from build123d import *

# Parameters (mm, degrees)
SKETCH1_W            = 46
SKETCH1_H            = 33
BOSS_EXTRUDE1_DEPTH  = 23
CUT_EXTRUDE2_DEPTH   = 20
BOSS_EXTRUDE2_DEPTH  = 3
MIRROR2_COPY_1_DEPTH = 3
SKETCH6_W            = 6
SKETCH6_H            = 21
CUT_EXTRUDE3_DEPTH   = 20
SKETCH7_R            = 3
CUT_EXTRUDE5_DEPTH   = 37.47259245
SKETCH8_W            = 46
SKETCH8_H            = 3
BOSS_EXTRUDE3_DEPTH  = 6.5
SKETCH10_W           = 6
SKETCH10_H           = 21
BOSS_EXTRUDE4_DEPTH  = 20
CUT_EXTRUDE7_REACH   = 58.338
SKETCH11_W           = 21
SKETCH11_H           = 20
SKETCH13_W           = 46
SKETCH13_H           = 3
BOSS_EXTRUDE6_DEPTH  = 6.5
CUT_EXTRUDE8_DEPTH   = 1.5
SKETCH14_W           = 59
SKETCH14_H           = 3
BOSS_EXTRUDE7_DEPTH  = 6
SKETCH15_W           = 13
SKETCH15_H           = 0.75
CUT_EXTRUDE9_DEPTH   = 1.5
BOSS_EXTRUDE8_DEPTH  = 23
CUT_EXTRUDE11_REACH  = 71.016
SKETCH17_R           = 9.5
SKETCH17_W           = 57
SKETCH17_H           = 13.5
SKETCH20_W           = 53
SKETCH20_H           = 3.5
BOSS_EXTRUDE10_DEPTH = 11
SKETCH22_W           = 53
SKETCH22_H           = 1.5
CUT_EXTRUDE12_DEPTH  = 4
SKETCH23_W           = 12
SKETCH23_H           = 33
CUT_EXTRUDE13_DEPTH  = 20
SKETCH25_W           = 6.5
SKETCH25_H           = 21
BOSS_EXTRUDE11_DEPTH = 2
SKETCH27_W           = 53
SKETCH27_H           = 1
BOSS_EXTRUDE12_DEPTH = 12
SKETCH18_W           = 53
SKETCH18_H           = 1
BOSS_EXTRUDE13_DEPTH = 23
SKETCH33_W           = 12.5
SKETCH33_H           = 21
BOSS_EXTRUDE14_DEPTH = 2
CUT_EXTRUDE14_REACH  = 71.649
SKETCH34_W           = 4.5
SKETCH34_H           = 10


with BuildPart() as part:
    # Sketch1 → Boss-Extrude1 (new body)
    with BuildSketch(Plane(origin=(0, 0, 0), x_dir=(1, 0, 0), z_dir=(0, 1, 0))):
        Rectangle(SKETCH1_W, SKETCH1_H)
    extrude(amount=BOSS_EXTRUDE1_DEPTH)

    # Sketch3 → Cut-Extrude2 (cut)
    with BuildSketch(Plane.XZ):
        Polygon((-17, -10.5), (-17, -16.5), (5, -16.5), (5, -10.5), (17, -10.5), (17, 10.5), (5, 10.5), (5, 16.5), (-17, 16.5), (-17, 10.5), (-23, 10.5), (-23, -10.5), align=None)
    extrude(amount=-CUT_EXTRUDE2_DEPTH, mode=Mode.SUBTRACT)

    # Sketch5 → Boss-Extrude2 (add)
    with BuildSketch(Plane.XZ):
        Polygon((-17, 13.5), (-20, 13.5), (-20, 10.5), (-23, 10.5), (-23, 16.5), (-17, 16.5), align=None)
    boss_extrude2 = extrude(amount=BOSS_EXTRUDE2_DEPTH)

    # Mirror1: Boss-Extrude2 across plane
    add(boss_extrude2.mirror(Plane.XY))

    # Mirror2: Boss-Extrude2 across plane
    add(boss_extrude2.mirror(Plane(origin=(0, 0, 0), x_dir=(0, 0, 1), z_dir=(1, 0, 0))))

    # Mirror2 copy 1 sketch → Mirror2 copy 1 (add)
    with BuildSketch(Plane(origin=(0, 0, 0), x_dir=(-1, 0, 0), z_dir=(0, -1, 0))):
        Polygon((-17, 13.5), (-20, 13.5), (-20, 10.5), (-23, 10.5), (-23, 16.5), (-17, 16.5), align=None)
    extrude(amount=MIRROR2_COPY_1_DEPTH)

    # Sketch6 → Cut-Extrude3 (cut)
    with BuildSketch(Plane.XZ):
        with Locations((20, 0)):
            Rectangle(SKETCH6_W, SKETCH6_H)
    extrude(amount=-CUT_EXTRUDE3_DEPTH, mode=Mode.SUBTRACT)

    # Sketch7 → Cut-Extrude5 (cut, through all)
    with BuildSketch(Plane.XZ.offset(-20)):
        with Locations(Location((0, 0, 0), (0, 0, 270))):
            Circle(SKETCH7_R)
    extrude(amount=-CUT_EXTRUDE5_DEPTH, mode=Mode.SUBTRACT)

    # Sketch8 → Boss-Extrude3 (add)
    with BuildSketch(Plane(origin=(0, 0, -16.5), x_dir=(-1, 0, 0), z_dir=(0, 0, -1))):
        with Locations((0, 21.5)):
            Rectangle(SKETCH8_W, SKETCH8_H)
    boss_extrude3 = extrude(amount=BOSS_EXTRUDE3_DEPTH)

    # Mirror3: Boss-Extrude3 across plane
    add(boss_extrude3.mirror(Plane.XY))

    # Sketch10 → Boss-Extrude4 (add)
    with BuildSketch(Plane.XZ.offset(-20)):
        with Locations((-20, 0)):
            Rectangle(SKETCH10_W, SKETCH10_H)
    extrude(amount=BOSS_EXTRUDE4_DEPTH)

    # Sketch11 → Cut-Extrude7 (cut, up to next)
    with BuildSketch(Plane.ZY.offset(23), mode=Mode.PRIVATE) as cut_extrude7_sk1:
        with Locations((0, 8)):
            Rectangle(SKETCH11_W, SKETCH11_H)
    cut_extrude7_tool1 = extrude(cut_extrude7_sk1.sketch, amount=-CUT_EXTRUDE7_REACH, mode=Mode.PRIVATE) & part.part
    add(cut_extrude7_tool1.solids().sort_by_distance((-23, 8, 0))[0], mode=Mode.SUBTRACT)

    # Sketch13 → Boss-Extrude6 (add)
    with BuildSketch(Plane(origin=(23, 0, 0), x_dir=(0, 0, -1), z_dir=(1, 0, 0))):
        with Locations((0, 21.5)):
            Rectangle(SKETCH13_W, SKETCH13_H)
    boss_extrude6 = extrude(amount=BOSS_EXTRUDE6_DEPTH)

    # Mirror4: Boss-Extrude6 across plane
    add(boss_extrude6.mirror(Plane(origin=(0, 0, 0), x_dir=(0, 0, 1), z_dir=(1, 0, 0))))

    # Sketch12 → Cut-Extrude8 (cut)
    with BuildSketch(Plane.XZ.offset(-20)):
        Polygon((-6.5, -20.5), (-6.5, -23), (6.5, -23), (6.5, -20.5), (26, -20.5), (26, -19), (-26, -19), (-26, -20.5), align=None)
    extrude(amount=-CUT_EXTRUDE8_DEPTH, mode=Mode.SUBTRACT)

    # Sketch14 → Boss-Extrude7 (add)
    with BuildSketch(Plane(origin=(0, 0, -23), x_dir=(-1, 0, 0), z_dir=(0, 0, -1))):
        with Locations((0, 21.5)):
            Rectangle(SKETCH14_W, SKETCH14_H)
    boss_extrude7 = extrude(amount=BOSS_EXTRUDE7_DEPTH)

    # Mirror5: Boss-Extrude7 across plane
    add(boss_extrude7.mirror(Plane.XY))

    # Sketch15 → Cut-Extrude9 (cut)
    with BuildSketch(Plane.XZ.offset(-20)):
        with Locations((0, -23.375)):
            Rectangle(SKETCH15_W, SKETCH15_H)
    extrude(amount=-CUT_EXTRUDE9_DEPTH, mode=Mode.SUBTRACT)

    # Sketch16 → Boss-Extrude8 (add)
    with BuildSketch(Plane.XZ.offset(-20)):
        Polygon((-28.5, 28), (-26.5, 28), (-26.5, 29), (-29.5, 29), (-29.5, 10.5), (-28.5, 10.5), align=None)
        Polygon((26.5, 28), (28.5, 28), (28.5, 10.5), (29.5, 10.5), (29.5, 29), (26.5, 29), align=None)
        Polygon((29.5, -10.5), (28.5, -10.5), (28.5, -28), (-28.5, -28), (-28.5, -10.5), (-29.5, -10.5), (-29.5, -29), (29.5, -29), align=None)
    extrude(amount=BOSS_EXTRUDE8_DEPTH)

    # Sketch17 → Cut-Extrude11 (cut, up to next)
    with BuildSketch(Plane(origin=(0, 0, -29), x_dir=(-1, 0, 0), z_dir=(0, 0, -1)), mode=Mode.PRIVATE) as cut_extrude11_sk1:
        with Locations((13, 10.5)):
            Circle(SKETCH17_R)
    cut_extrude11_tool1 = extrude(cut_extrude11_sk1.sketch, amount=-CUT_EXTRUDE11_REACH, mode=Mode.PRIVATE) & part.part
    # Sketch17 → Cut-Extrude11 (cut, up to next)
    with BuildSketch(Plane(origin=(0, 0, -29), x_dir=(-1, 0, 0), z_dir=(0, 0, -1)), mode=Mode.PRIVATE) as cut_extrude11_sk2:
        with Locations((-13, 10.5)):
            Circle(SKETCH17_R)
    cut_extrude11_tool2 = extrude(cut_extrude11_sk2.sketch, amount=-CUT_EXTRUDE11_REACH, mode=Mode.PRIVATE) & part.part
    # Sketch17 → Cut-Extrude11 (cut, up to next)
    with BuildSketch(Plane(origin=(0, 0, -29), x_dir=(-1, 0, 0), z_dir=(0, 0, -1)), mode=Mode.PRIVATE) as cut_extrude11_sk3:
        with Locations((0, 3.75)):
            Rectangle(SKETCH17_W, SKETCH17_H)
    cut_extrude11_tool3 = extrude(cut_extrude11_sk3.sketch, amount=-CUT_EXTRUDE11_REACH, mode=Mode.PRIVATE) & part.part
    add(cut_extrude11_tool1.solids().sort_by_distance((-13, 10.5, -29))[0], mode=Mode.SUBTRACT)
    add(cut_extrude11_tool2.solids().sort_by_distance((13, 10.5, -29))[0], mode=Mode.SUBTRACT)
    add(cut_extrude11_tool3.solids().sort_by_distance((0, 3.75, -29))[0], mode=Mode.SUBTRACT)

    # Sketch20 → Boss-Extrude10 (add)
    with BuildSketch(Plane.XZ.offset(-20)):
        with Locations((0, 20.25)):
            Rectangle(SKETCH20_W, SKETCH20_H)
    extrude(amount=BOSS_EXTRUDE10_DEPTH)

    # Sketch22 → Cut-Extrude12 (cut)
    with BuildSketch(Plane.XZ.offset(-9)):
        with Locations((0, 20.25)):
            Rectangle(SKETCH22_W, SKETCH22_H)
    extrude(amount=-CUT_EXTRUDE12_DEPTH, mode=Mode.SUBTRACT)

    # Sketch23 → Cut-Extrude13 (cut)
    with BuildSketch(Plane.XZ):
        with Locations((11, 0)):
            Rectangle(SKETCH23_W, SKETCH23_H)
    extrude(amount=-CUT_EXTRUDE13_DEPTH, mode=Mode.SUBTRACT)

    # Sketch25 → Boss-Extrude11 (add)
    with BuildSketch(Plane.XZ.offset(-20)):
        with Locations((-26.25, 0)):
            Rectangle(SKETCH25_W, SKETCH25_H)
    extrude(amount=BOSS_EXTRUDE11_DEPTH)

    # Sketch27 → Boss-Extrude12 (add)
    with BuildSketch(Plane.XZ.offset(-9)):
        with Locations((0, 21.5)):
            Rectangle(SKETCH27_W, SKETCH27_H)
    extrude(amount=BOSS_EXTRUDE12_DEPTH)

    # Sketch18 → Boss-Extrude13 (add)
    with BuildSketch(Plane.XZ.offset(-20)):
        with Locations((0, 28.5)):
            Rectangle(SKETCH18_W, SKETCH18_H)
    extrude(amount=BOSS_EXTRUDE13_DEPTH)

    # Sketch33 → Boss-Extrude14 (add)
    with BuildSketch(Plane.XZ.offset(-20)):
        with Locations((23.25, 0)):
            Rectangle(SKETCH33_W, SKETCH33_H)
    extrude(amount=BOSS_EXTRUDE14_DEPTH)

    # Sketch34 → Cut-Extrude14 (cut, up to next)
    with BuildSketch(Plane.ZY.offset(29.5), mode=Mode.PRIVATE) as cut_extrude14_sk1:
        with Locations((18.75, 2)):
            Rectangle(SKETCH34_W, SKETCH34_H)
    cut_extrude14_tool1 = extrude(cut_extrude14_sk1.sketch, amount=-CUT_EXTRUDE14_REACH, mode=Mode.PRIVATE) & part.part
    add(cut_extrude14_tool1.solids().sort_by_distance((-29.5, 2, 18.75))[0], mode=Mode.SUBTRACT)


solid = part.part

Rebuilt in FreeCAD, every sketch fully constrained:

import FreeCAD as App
import Part
import Sketcher

V = App.Vector
Q = App.Units.Quantity


def add_polygon(sketch, points):
    """Adds a closed chain of lines whose ends are joined by coincident constraints."""
    first, n = sketch.GeometryCount, len(points)
    for a, b in zip(points, points[1:] + points[:1]):
        sketch.addGeometry(Part.LineSegment(App.Vector(*a, 0), App.Vector(*b, 0)), False)
    for i in range(n):
        sketch.addConstraint(Sketcher.Constraint("Coincident", first + i, 2, first + (i + 1) % n, 1))

doc = App.newDocument("Part")
body = doc.addObject("PartDesign::Body", "Body")

# Sketch on XZ plane
sketch1 = doc.addObject("Sketcher::SketchObject", "Sketch")
body.addObject(sketch1)
sketch1.AttachmentSupport = (doc.XZ_Plane, [""])
sketch1.MapMode = "FlatFace"
add_polygon(sketch1, [(-23, -16), (-23, 16), (23, 16), (23, -16)])  # lines 0-3
sketch1.addConstraint(Sketcher.Constraint("Vertical", 0))
sketch1.addConstraint(Sketcher.Constraint("Horizontal", 1))
sketch1.addConstraint(Sketcher.Constraint("Vertical", 2))
sketch1.addConstraint(Sketcher.Constraint("Horizontal", 3))
sketch1.addConstraint(Sketcher.Constraint("Symmetric", 0, 2, 2, 2, -1, 1))
sketch1.addConstraint(Sketcher.Constraint("DistanceX", 1, 1, 1, 2, Q("46 mm")))
sketch1.addConstraint(Sketcher.Constraint("DistanceY", 0, 1, 0, 2, Q("33 mm")))
pad1 = doc.addObject("PartDesign::Pad", "Pad")
body.addObject(pad1)
pad1.Profile = sketch1
pad1.Length = 23
pad1.Reversed = True

# Sketch on XZ plane
sketch2 = doc.addObject("Sketcher::SketchObject", "Sketch001")
body.addObject(sketch2)
sketch2.AttachmentSupport = (doc.XZ_Plane, [""])
sketch2.MapMode = "FlatFace"
add_polygon(sketch2, [(-17, -10), (-17, -16), (5, -16), (5, -10), (17, -10), (17, 10), (5, 10), (5, 16), (-17, 16), (-17, 10), (-23, 10), (-23, -10)])  # lines 0-11
sketch2.addConstraint(Sketcher.Constraint("Vertical", 0))
sketch2.addConstraint(Sketcher.Constraint("Horizontal", 1))
sketch2.addConstraint(Sketcher.Constraint("Vertical", 2))
sketch2.addConstraint(Sketcher.Constraint("Horizontal", 3))
sketch2.addConstraint(Sketcher.Constraint("Vertical", 4))
sketch2.addConstraint(Sketcher.Constraint("Horizontal", 5))
sketch2.addConstraint(Sketcher.Constraint("Vertical", 6))
sketch2.addConstraint(Sketcher.Constraint("Horizontal", 7))
sketch2.addConstraint(Sketcher.Constraint("Vertical", 8))
sketch2.addConstraint(Sketcher.Constraint("Horizontal", 9))
sketch2.addConstraint(Sketcher.Constraint("Vertical", 10))
sketch2.addConstraint(Sketcher.Constraint("Horizontal", 11))
sketch2.addConstraint(Sketcher.Constraint("Symmetric", 3, 2, 8, 2, -1, 1))
sketch2.addConstraint(Sketcher.Constraint("Symmetric", 4, 2, 11, 2, -1, 1))
sketch2.addConstraint(Sketcher.Constraint("Symmetric", 2, 2, 5, 2, -1))
sketch2.addConstraint(Sketcher.Constraint("Equal", 11, 0))
sketch2.addConstraint(Sketcher.Constraint("Equal", 2, 6))
sketch2.addConstraint(Sketcher.Constraint("DistanceX", 1, 1, 1, 2, Q("22 mm")))
sketch2.addConstraint(Sketcher.Constraint("DistanceX", 3, 1, 3, 2, Q("12 mm")))
sketch2.addConstraint(Sketcher.Constraint("DistanceX", 9, 2, 9, 1, Q("6 mm")))
sketch2.addConstraint(Sketcher.Constraint("DistanceY", 4, 1, 4, 2, Q("21 mm")))
pocket1 = doc.addObject("PartDesign::Pocket", "Pocket")
body.addObject(pocket1)
pocket1.Profile = sketch2
pocket1.Length = 20

# Sketch on XZ plane
sketch3 = doc.addObject("Sketcher::SketchObject", "Sketch002")
body.addObject(sketch3)
sketch3.AttachmentSupport = (doc.XZ_Plane, [""])
sketch3.MapMode = "FlatFace"
add_polygon(sketch3, [(-20, 13.5), (-17, 13.5), (-17, 16.5), (-23, 16.5), (-23, 10.5), (-20, 10.5)])  # lines 0-5
sketch3.addConstraint(Sketcher.Constraint("Horizontal", 0))
sketch3.addConstraint(Sketcher.Constraint("Vertical", 1))
sketch3.addConstraint(Sketcher.Constraint("Horizontal", 2))
sketch3.addConstraint(Sketcher.Constraint("Vertical", 3))
sketch3.addConstraint(Sketcher.Constraint("Horizontal", 4))
sketch3.addConstraint(Sketcher.Constraint("Vertical", 5))
sketch3.addConstraint(Sketcher.Constraint("Equal", 0, 4))
sketch3.addConstraint(Sketcher.Constraint("Equal", 4, 1))
sketch3.addConstraint(Sketcher.Constraint("Equal", 2, 3))
sketch3.addConstraint(Sketcher.Constraint("DistanceX", 0, 1, 0, 2, Q("3 mm")))
sketch3.addConstraint(Sketcher.Constraint("DistanceX", 0, 2, -1, 1, Q("17 mm")))
sketch3.addConstraint(Sketcher.Constraint("DistanceY", -1, 1, 0, 2, Q("13.5 mm")))
pad2 = doc.addObject("PartDesign::Pad", "Pad001")
body.addObject(pad2)
pad2.Profile = sketch3
pad2.Length = 3
doc.recompute()

mirrored = doc.addObject("PartDesign::Mirrored", "Mirrored")
body.addObject(mirrored)
mirrored.Originals = [pad2]
mirrored.MirrorPlane = (doc.XY_Plane, [""])
body.Tip = mirrored
doc.recompute()

mirrored2 = doc.addObject("PartDesign::Mirrored", "Mirrored001")
body.addObject(mirrored2)
mirrored2.Originals = [pad2]
mirrored2.MirrorPlane = (doc.YZ_Plane, [""])
body.Tip = mirrored2

# Sketch on XZ plane
sketch4 = doc.addObject("Sketcher::SketchObject", "Sketch003")
body.addObject(sketch4)
sketch4.AttachmentSupport = (doc.XZ_Plane, [""])
sketch4.MapMode = "FlatFace"
add_polygon(sketch4, [(20, -13.5), (17, -13.5), (17, -16.5), (23, -16.5), (23, -10.5), (20, -10.5)])  # lines 0-5
sketch4.addConstraint(Sketcher.Constraint("Horizontal", 0))
sketch4.addConstraint(Sketcher.Constraint("Vertical", 1))
sketch4.addConstraint(Sketcher.Constraint("Horizontal", 2))
sketch4.addConstraint(Sketcher.Constraint("Vertical", 3))
sketch4.addConstraint(Sketcher.Constraint("Horizontal", 4))
sketch4.addConstraint(Sketcher.Constraint("Vertical", 5))
sketch4.addConstraint(Sketcher.Constraint("Equal", 0, 4))
sketch4.addConstraint(Sketcher.Constraint("Equal", 4, 1))
sketch4.addConstraint(Sketcher.Constraint("Equal", 2, 3))
sketch4.addConstraint(Sketcher.Constraint("DistanceX", 0, 2, 0, 1, Q("3 mm")))
sketch4.addConstraint(Sketcher.Constraint("DistanceX", -1, 1, 0, 2, Q("17 mm")))
sketch4.addConstraint(Sketcher.Constraint("DistanceY", 0, 2, -1, 1, Q("13.5 mm")))
pad3 = doc.addObject("PartDesign::Pad", "Pad002")
body.addObject(pad3)
pad3.Profile = sketch4
pad3.Length = 3

# Sketch on XZ plane
sketch5 = doc.addObject("Sketcher::SketchObject", "Sketch004")
body.addObject(sketch5)
sketch5.AttachmentSupport = (doc.XZ_Plane, [""])
sketch5.MapMode = "FlatFace"
add_polygon(sketch5, [(17, 10), (17, -10), (23, -10), (23, 10)])  # lines 0-3
sketch5.addConstraint(Sketcher.Constraint("Vertical", 0))
sketch5.addConstraint(Sketcher.Constraint("Horizontal", 1))
sketch5.addConstraint(Sketcher.Constraint("Vertical", 2))
sketch5.addConstraint(Sketcher.Constraint("Horizontal", 3))
sketch5.addConstraint(Sketcher.Constraint("DistanceX", 1, 1, 1, 2, Q("6 mm")))
sketch5.addConstraint(Sketcher.Constraint("DistanceY", 0, 2, 0, 1, Q("21 mm")))
sketch5.addConstraint(Sketcher.Constraint("DistanceX", -1, 1, 0, 2, Q("17 mm")))
sketch5.addConstraint(Sketcher.Constraint("DistanceY", 0, 2, -1, 1, Q("10.5 mm")))
pocket2 = doc.addObject("PartDesign::Pocket", "Pocket001")
body.addObject(pocket2)
pocket2.Profile = sketch5
pocket2.Length = 20

# Sketch on XZ plane
sketch6 = doc.addObject("Sketcher::SketchObject", "Sketch005")
body.addObject(sketch6)
sketch6.AttachmentSupport = (doc.XZ_Plane, [""])
sketch6.MapMode = "FlatFace"
sketch6.AttachmentOffset = App.Placement(V(0, 0, -20), App.Rotation())
sketch6.addGeometry(Part.Circle(V(0, 0, 0), V(0, 0, 1), 3), False)
sketch6.addConstraint(Sketcher.Constraint("Coincident", 0, 3, -1, 1))
sketch6.addConstraint(Sketcher.Constraint("Diameter", 0, Q("6 mm")))
pocket3 = doc.addObject("PartDesign::Pocket", "Pocket002")
body.addObject(pocket3)
pocket3.Profile = sketch6
pocket3.Type = "ThroughAll"

# Sketch on XY plane
sketch7 = doc.addObject("Sketcher::SketchObject", "Sketch006")
body.addObject(sketch7)
sketch7.AttachmentSupport = (doc.XY_Plane, [""])
sketch7.MapMode = "FlatFace"
sketch7.AttachmentOffset = App.Placement(V(0, 0, -16.5), App.Rotation())
add_polygon(sketch7, [(23, 23), (23, 20), (-23, 20), (-23, 23)])  # lines 0-3
sketch7.addConstraint(Sketcher.Constraint("Vertical", 0))
sketch7.addConstraint(Sketcher.Constraint("Horizontal", 1))
sketch7.addConstraint(Sketcher.Constraint("Vertical", 2))
sketch7.addConstraint(Sketcher.Constraint("Horizontal", 3))
sketch7.addConstraint(Sketcher.Constraint("DistanceX", 1, 2, 1, 1, Q("46 mm")))
sketch7.addConstraint(Sketcher.Constraint("DistanceY", 0, 2, 0, 1, Q("3 mm")))
sketch7.addConstraint(Sketcher.Constraint("DistanceX", -1, 1, 0, 2, Q("23 mm")))
sketch7.addConstraint(Sketcher.Constraint("DistanceY", -1, 1, 0, 2, Q("20 mm")))
pad4 = doc.addObject("PartDesign::Pad", "Pad003")
body.addObject(pad4)
pad4.Profile = sketch7
pad4.Length = 6.5
pad4.Reversed = True
doc.recompute()

mirrored3 = doc.addObject("PartDesign::Mirrored", "Mirrored002")
body.addObject(mirrored3)
mirrored3.Originals = [pad4]
mirrored3.MirrorPlane = (doc.XY_Plane, [""])
body.Tip = mirrored3

# Sketch on XZ plane
sketch8 = doc.addObject("Sketcher::SketchObject", "Sketch007")
body.addObject(sketch8)
sketch8.AttachmentSupport = (doc.XZ_Plane, [""])
sketch8.MapMode = "FlatFace"
sketch8.AttachmentOffset = App.Placement(V(0, 0, -20), App.Rotation())
add_polygon(sketch8, [(-23, 10), (-23, -10), (-17, -10), (-17, 10)])  # lines 0-3
sketch8.addConstraint(Sketcher.Constraint("Vertical", 0))
sketch8.addConstraint(Sketcher.Constraint("Horizontal", 1))
sketch8.addConstraint(Sketcher.Constraint("Vertical", 2))
sketch8.addConstraint(Sketcher.Constraint("Horizontal", 3))
sketch8.addConstraint(Sketcher.Constraint("DistanceX", 1, 1, 1, 2, Q("6 mm")))
sketch8.addConstraint(Sketcher.Constraint("DistanceY", 0, 2, 0, 1, Q("21 mm")))
sketch8.addConstraint(Sketcher.Constraint("DistanceX", 0, 2, -1, 1, Q("23 mm")))
sketch8.addConstraint(Sketcher.Constraint("DistanceY", 0, 2, -1, 1, Q("10.5 mm")))
pad5 = doc.addObject("PartDesign::Pad", "Pad004")
body.addObject(pad5)
pad5.Profile = sketch8
pad5.Length = 20

# Sketch on YZ plane
sketch9 = doc.addObject("Sketcher::SketchObject", "Sketch008")
body.addObject(sketch9)
sketch9.AttachmentSupport = (doc.YZ_Plane, [""])
sketch9.MapMode = "FlatFace"
sketch9.AttachmentOffset = App.Placement(V(0, 0, -23), App.Rotation())
add_polygon(sketch9, [(18, -10), (-2, -10), (-2, 10), (18, 10)])  # lines 0-3
sketch9.addConstraint(Sketcher.Constraint("Horizontal", 0))
sketch9.addConstraint(Sketcher.Constraint("Vertical", 1))
sketch9.addConstraint(Sketcher.Constraint("Horizontal", 2))
sketch9.addConstraint(Sketcher.Constraint("Vertical", 3))
sketch9.addConstraint(Sketcher.Constraint("DistanceX", 0, 2, 0, 1, Q("20 mm")))
sketch9.addConstraint(Sketcher.Constraint("DistanceY", 1, 1, 1, 2, Q("21 mm")))
sketch9.addConstraint(Sketcher.Constraint("DistanceX", 0, 2, -1, 1, Q("2 mm")))
sketch9.addConstraint(Sketcher.Constraint("DistanceY", 0, 2, -1, 1, Q("10.5 mm")))
pocket4 = doc.addObject("PartDesign::Pocket", "Pocket003")
body.addObject(pocket4)
pocket4.Profile = sketch9
pocket4.Type = "UpToFirst"
pocket4.Reversed = True

# Sketch on YZ plane
sketch10 = doc.addObject("Sketcher::SketchObject", "Sketch009")
body.addObject(sketch10)
sketch10.AttachmentSupport = (doc.YZ_Plane, [""])
sketch10.MapMode = "FlatFace"
sketch10.AttachmentOffset = App.Placement(V(0, 0, 23), App.Rotation())
add_polygon(sketch10, [(23, 23), (20, 23), (20, -23), (23, -23)])  # lines 0-3
sketch10.addConstraint(Sketcher.Constraint("Horizontal", 0))
sketch10.addConstraint(Sketcher.Constraint("Vertical", 1))
sketch10.addConstraint(Sketcher.Constraint("Horizontal", 2))
sketch10.addConstraint(Sketcher.Constraint("Vertical", 3))
sketch10.addConstraint(Sketcher.Constraint("DistanceX", 0, 2, 0, 1, Q("3 mm")))
sketch10.addConstraint(Sketcher.Constraint("DistanceY", 1, 2, 1, 1, Q("46 mm")))
sketch10.addConstraint(Sketcher.Constraint("DistanceX", -1, 1, 0, 2, Q("20 mm")))
sketch10.addConstraint(Sketcher.Constraint("DistanceY", -1, 1, 0, 2, Q("23 mm")))
pad6 = doc.addObject("PartDesign::Pad", "Pad005")
body.addObject(pad6)
pad6.Profile = sketch10
pad6.Length = 6.5
doc.recompute()

mirrored4 = doc.addObject("PartDesign::Mirrored", "Mirrored003")
body.addObject(mirrored4)
mirrored4.Originals = [pad6]
mirrored4.MirrorPlane = (doc.YZ_Plane, [""])
body.Tip = mirrored4

# Sketch on XZ plane
sketch11 = doc.addObject("Sketcher::SketchObject", "Sketch010")
body.addObject(sketch11)
sketch11.AttachmentSupport = (doc.XZ_Plane, [""])
sketch11.MapMode = "FlatFace"
sketch11.AttachmentOffset = App.Placement(V(0, 0, -20), App.Rotation())
add_polygon(sketch11, [(-6.5, -20.5), (-6.5, -23), (6.5, -23), (6.5, -20.5), (26, -20.5), (26, -19), (-26, -19), (-26, -20.5)])  # lines 0-7
sketch11.addConstraint(Sketcher.Constraint("Vertical", 0))
sketch11.addConstraint(Sketcher.Constraint("Horizontal", 1))
sketch11.addConstraint(Sketcher.Constraint("Vertical", 2))
sketch11.addConstraint(Sketcher.Constraint("Horizontal", 3))
sketch11.addConstraint(Sketcher.Constraint("Vertical", 4))
sketch11.addConstraint(Sketcher.Constraint("Horizontal", 5))
sketch11.addConstraint(Sketcher.Constraint("Vertical", 6))
sketch11.addConstraint(Sketcher.Constraint("Horizontal", 7))
sketch11.addConstraint(Sketcher.Constraint("Symmetric", 3, 2, 6, 2, -2))
sketch11.addConstraint(Sketcher.Constraint("Equal", 3, 7))
sketch11.addConstraint(Sketcher.Constraint("DistanceX", 1, 1, 1, 2, Q("13 mm")))
sketch11.addConstraint(Sketcher.Constraint("DistanceX", 5, 2, 5, 1, Q("52 mm")))
sketch11.addConstraint(Sketcher.Constraint("DistanceY", 0, 2, 0, 1, Q("2.5 mm")))
sketch11.addConstraint(Sketcher.Constraint("DistanceY", 4, 1, 4, 2, Q("1.5 mm")))
sketch11.addConstraint(Sketcher.Constraint("DistanceY", 0, 2, -1, 1, Q("23 mm")))
pocket5 = doc.addObject("PartDesign::Pocket", "Pocket004")
body.addObject(pocket5)
pocket5.Profile = sketch11
pocket5.Length = 1.5

# Sketch on XY plane
sketch12 = doc.addObject("Sketcher::SketchObject", "Sketch011")
body.addObject(sketch12)
sketch12.AttachmentSupport = (doc.XY_Plane, [""])
sketch12.MapMode = "FlatFace"
sketch12.AttachmentOffset = App.Placement(V(0, 0, -23), App.Rotation())
add_polygon(sketch12, [(29.5, 23), (29.5, 20), (-29.5, 20), (-29.5, 23)])  # lines 0-3
sketch12.addConstraint(Sketcher.Constraint("Vertical", 0))
sketch12.addConstraint(Sketcher.Constraint("Horizontal", 1))
sketch12.addConstraint(Sketcher.Constraint("Vertical", 2))
sketch12.addConstraint(Sketcher.Constraint("Horizontal", 3))
sketch12.addConstraint(Sketcher.Constraint("DistanceX", 1, 2, 1, 1, Q("59 mm")))
sketch12.addConstraint(Sketcher.Constraint("DistanceY", 0, 2, 0, 1, Q("3 mm")))
sketch12.addConstraint(Sketcher.Constraint("DistanceY", -1, 1, 0, 2, Q("20 mm")))
sketch12.addConstraint(Sketcher.Constraint("DistanceX", -1, 1, 0, 2, Q("29.5 mm")))
pad7 = doc.addObject("PartDesign::Pad", "Pad006")
body.addObject(pad7)
pad7.Profile = sketch12
pad7.Length = 6
pad7.Reversed = True
doc.recompute()

mirrored5 = doc.addObject("PartDesign::Mirrored", "Mirrored004")
body.addObject(mirrored5)
mirrored5.Originals = [pad7]
mirrored5.MirrorPlane = (doc.XY_Plane, [""])
body.Tip = mirrored5

# Sketch on XZ plane
sketch13 = doc.addObject("Sketcher::SketchObject", "Sketch012")
body.addObject(sketch13)
sketch13.AttachmentSupport = (doc.XZ_Plane, [""])
sketch13.MapMode = "FlatFace"
sketch13.AttachmentOffset = App.Placement(V(0, 0, -20), App.Rotation())
add_polygon(sketch13, [(-6.5, -23), (-6.5, -23.8), (6.5, -23.8), (6.5, -23)])  # lines 0-3
sketch13.addConstraint(Sketcher.Constraint("Vertical", 0))
sketch13.addConstraint(Sketcher.Constraint("Horizontal", 1))
sketch13.addConstraint(Sketcher.Constraint("Vertical", 2))
sketch13.addConstraint(Sketcher.Constraint("Horizontal", 3))
sketch13.addConstraint(Sketcher.Constraint("DistanceX", 1, 1, 1, 2, Q("13 mm")))
sketch13.addConstraint(Sketcher.Constraint("DistanceY", 2, 2, -1, 1, Q("23 mm")))
sketch13.addConstraint(Sketcher.Constraint("DistanceY", 0, 2, 0, 1, Q("0.75 mm")))
sketch13.addConstraint(Sketcher.Constraint("DistanceX", 0, 2, -1, 1, Q("6.5 mm")))
pocket6 = doc.addObject("PartDesign::Pocket", "Pocket005")
body.addObject(pocket6)
pocket6.Profile = sketch13
pocket6.Length = 1.5

# Sketch on XZ plane
sketch14 = doc.addObject("Sketcher::SketchObject", "Sketch013")
body.addObject(sketch14)
sketch14.AttachmentSupport = (doc.XZ_Plane, [""])
sketch14.MapMode = "FlatFace"
sketch14.AttachmentOffset = App.Placement(V(0, 0, -20), App.Rotation())
add_polygon(sketch14, [(-28.5, 28), (-26.5, 28), (-26.5, 29), (-29.5, 29), (-29.5, 10.5), (-28.5, 10.5)])  # lines 0-5
add_polygon(sketch14, [(26.5, 28), (28.5, 28), (28.5, 10.5), (29.5, 10.5), (29.5, 29), (26.5, 29)])  # lines 6-11
add_polygon(sketch14, [(29.5, -10.5), (28.5, -10.5), (28.5, -28), (-28.5, -28), (-28.5, -10.5), (-29.5, -10.5), (-29.5, -29), (29.5, -29)])  # lines 12-19
sketch14.addConstraint(Sketcher.Constraint("Horizontal", 0))
sketch14.addConstraint(Sketcher.Constraint("Vertical", 1))
sketch14.addConstraint(Sketcher.Constraint("Horizontal", 2))
sketch14.addConstraint(Sketcher.Constraint("Vertical", 3))
sketch14.addConstraint(Sketcher.Constraint("Horizontal", 4))
sketch14.addConstraint(Sketcher.Constraint("Vertical", 5))
sketch14.addConstraint(Sketcher.Constraint("Horizontal", 6))
sketch14.addConstraint(Sketcher.Constraint("Vertical", 7))
sketch14.addConstraint(Sketcher.Constraint("Horizontal", 8))
sketch14.addConstraint(Sketcher.Constraint("Vertical", 9))
sketch14.addConstraint(Sketcher.Constraint("Horizontal", 10))
sketch14.addConstraint(Sketcher.Constraint("Vertical", 11))
sketch14.addConstraint(Sketcher.Constraint("Horizontal", 12))
sketch14.addConstraint(Sketcher.Constraint("Vertical", 13))
sketch14.addConstraint(Sketcher.Constraint("Horizontal", 14))
sketch14.addConstraint(Sketcher.Constraint("Vertical", 15))
sketch14.addConstraint(Sketcher.Constraint("Horizontal", 16))
sketch14.addConstraint(Sketcher.Constraint("Vertical", 17))
sketch14.addConstraint(Sketcher.Constraint("Horizontal", 18))
sketch14.addConstraint(Sketcher.Constraint("Vertical", 19))
sketch14.addConstraint(Sketcher.Constraint("Symmetric", 4, 2, 12, 2, -1, 1))
sketch14.addConstraint(Sketcher.Constraint("Symmetric", 6, 2, 14, 2, -1, 1))
sketch14.addConstraint(Sketcher.Constraint("Symmetric", 8, 2, 16, 2, -1, 1))
sketch14.addConstraint(Sketcher.Constraint("Symmetric", 2, 2, 18, 2, -1, 1))
sketch14.addConstraint(Sketcher.Constraint("Symmetric", 5, 2, 6, 2, -2))
sketch14.addConstraint(Sketcher.Constraint("Symmetric", 3, 2, 8, 2, -2))
sketch14.addConstraint(Sketcher.Constraint("Symmetric", 1, 2, 10, 2, -2))
sketch14.addConstraint(Sketcher.Constraint("Equal", 16, 1))
sketch14.addConstraint(Sketcher.Constraint("DistanceX", 0, 1, 0, 2, Q("2 mm")))
sketch14.addConstraint(Sketcher.Constraint("DistanceX", 2, 2, 2, 1, Q("3 mm")))
sketch14.addConstraint(Sketcher.Constraint("DistanceX", 14, 2, 14, 1, Q("57 mm")))
sketch14.addConstraint(Sketcher.Constraint("DistanceY", 3, 2, 3, 1, Q("18.5 mm")))
sketch14.addConstraint(Sketcher.Constraint("DistanceY", -1, 1, 0, 2, Q("28 mm")))
pad8 = doc.addObject("PartDesign::Pad", "Pad007")
body.addObject(pad8)
pad8.Profile = sketch14
pad8.Length = 23

# Sketch on XY plane
sketch15 = doc.addObject("Sketcher::SketchObject", "Sketch014")
body.addObject(sketch15)
sketch15.AttachmentSupport = (doc.XY_Plane, [""])
sketch15.MapMode = "FlatFace"
sketch15.AttachmentOffset = App.Placement(V(0, 0, -29), App.Rotation())
sketch15.addGeometry(Part.Circle(V(-13, 10, 0), V(0, 0, 1), 10), False)
sketch15.addConstraint(Sketcher.Constraint("Diameter", 0, Q("19 mm")))
sketch15.addConstraint(Sketcher.Constraint("DistanceX", 0, 3, -1, 1, Q("13 mm")))
sketch15.addConstraint(Sketcher.Constraint("DistanceY", -1, 1, 0, 3, Q("10.5 mm")))
pocket7 = doc.addObject("PartDesign::Pocket", "Pocket006")
body.addObject(pocket7)
pocket7.Profile = sketch15
pocket7.Type = "UpToFirst"
pocket7.Reversed = True

# Sketch on XY plane
sketch16 = doc.addObject("Sketcher::SketchObject", "Sketch015")
body.addObject(sketch16)
sketch16.AttachmentSupport = (doc.XY_Plane, [""])
sketch16.MapMode = "FlatFace"
sketch16.AttachmentOffset = App.Placement(V(0, 0, -29), App.Rotation())
sketch16.addGeometry(Part.Circle(V(13, 10, 0), V(0, 0, 1), 10), False)
sketch16.addConstraint(Sketcher.Constraint("Diameter", 0, Q("19 mm")))
sketch16.addConstraint(Sketcher.Constraint("DistanceX", -1, 1, 0, 3, Q("13 mm")))
sketch16.addConstraint(Sketcher.Constraint("DistanceY", -1, 1, 0, 3, Q("10.5 mm")))
pocket8 = doc.addObject("PartDesign::Pocket", "Pocket007")
body.addObject(pocket8)
pocket8.Profile = sketch16
pocket8.Type = "UpToFirst"
pocket8.Reversed = True

# Sketch on XY plane
sketch17 = doc.addObject("Sketcher::SketchObject", "Sketch016")
body.addObject(sketch17)
sketch17.AttachmentSupport = (doc.XY_Plane, [""])
sketch17.MapMode = "FlatFace"
sketch17.AttachmentOffset = App.Placement(V(0, 0, -29), App.Rotation())
add_polygon(sketch17, [(28, 10), (28, -3), (-28, -3), (-28, 10)])  # lines 0-3
sketch17.addConstraint(Sketcher.Constraint("Vertical", 0))
sketch17.addConstraint(Sketcher.Constraint("Horizontal", 1))
sketch17.addConstraint(Sketcher.Constraint("Vertical", 2))
sketch17.addConstraint(Sketcher.Constraint("Horizontal", 3))
sketch17.addConstraint(Sketcher.Constraint("DistanceX", 1, 2, 1, 1, Q("57 mm")))
sketch17.addConstraint(Sketcher.Constraint("DistanceY", 0, 2, 0, 1, Q("13.5 mm")))
sketch17.addConstraint(Sketcher.Constraint("DistanceY", 0, 2, -1, 1, Q("3 mm")))
sketch17.addConstraint(Sketcher.Constraint("DistanceX", -1, 1, 0, 2, Q("28.5 mm")))
pocket9 = doc.addObject("PartDesign::Pocket", "Pocket008")
body.addObject(pocket9)
pocket9.Profile = sketch17
pocket9.Type = "UpToFirst"
pocket9.Reversed = True

# Sketch on XZ plane
sketch18 = doc.addObject("Sketcher::SketchObject", "Sketch017")
body.addObject(sketch18)
sketch18.AttachmentSupport = (doc.XZ_Plane, [""])
sketch18.MapMode = "FlatFace"
sketch18.AttachmentOffset = App.Placement(V(0, 0, -20), App.Rotation())
add_polygon(sketch18, [(-26.5, 22), (-26.5, 18.5), (26.5, 18.5), (26.5, 22)])  # lines 0-3
sketch18.addConstraint(Sketcher.Constraint("Vertical", 0))
sketch18.addConstraint(Sketcher.Constraint("Horizontal", 1))
sketch18.addConstraint(Sketcher.Constraint("Vertical", 2))
sketch18.addConstraint(Sketcher.Constraint("Horizontal", 3))
sketch18.addConstraint(Sketcher.Constraint("DistanceX", 1, 1, 1, 2, Q("53 mm")))
sketch18.addConstraint(Sketcher.Constraint("DistanceY", 0, 2, 0, 1, Q("3.5 mm")))
sketch18.addConstraint(Sketcher.Constraint("DistanceY", -1, 1, 2, 2, Q("22 mm")))
sketch18.addConstraint(Sketcher.Constraint("DistanceX", 0, 2, -1, 1, Q("26.5 mm")))
pad9 = doc.addObject("PartDesign::Pad", "Pad008")
body.addObject(pad9)
pad9.Profile = sketch18
pad9.Length = 11

# Sketch on XZ plane
sketch19 = doc.addObject("Sketcher::SketchObject", "Sketch018")
body.addObject(sketch19)
sketch19.AttachmentSupport = (doc.XZ_Plane, [""])
sketch19.MapMode = "FlatFace"
sketch19.AttachmentOffset = App.Placement(V(0, 0, -9), App.Rotation())
add_polygon(sketch19, [(-26.5, 21), (-26.5, 19.5), (26.5, 19.5), (26.5, 21)])  # lines 0-3
sketch19.addConstraint(Sketcher.Constraint("Vertical", 0))
sketch19.addConstraint(Sketcher.Constraint("Horizontal", 1))
sketch19.addConstraint(Sketcher.Constraint("Vertical", 2))
sketch19.addConstraint(Sketcher.Constraint("Horizontal", 3))
sketch19.addConstraint(Sketcher.Constraint("DistanceX", 1, 1, 1, 2, Q("53 mm")))
sketch19.addConstraint(Sketcher.Constraint("DistanceY", 0, 2, 0, 1, Q("1.5 mm")))
sketch19.addConstraint(Sketcher.Constraint("DistanceY", -1, 1, 2, 2, Q("21 mm")))
sketch19.addConstraint(Sketcher.Constraint("DistanceX", 0, 2, -1, 1, Q("26.5 mm")))
pocket10 = doc.addObject("PartDesign::Pocket", "Pocket009")
body.addObject(pocket10)
pocket10.Profile = sketch19
pocket10.Length = 4

# Sketch on XZ plane
sketch20 = doc.addObject("Sketcher::SketchObject", "Sketch019")
body.addObject(sketch20)
sketch20.AttachmentSupport = (doc.XZ_Plane, [""])
sketch20.MapMode = "FlatFace"
add_polygon(sketch20, [(5, 16), (5, -16), (17, -16), (17, 16)])  # lines 0-3
sketch20.addConstraint(Sketcher.Constraint("Vertical", 0))
sketch20.addConstraint(Sketcher.Constraint("Horizontal", 1))
sketch20.addConstraint(Sketcher.Constraint("Vertical", 2))
sketch20.addConstraint(Sketcher.Constraint("Horizontal", 3))
sketch20.addConstraint(Sketcher.Constraint("DistanceX", 1, 1, 1, 2, Q("12 mm")))
sketch20.addConstraint(Sketcher.Constraint("DistanceY", 0, 2, 0, 1, Q("33 mm")))
sketch20.addConstraint(Sketcher.Constraint("DistanceX", -1, 1, 0, 2, Q("5 mm")))
sketch20.addConstraint(Sketcher.Constraint("DistanceY", 0, 2, -1, 1, Q("16.5 mm")))
pocket11 = doc.addObject("PartDesign::Pocket", "Pocket010")
body.addObject(pocket11)
pocket11.Profile = sketch20
pocket11.Length = 20

# Sketch on XZ plane
sketch21 = doc.addObject("Sketcher::SketchObject", "Sketch020")
body.addObject(sketch21)
sketch21.AttachmentSupport = (doc.XZ_Plane, [""])
sketch21.MapMode = "FlatFace"
sketch21.AttachmentOffset = App.Placement(V(0, 0, -20), App.Rotation())
add_polygon(sketch21, [(-30, 10), (-30, -10), (-23, -10), (-23, 10)])  # lines 0-3
sketch21.addConstraint(Sketcher.Constraint("Vertical", 0))
sketch21.addConstraint(Sketcher.Constraint("Horizontal", 1))
sketch21.addConstraint(Sketcher.Constraint("Vertical", 2))
sketch21.addConstraint(Sketcher.Constraint("Horizontal", 3))
sketch21.addConstraint(Sketcher.Constraint("DistanceY", 0, 2, 0, 1, Q("21 mm")))
sketch21.addConstraint(Sketcher.Constraint("DistanceX", 1, 1, 1, 2, Q("6.5 mm")))
sketch21.addConstraint(Sketcher.Constraint("DistanceX", 1, 2, -1, 1, Q("23 mm")))
sketch21.addConstraint(Sketcher.Constraint("DistanceY", 0, 2, -1, 1, Q("10.5 mm")))
pad10 = doc.addObject("PartDesign::Pad", "Pad009")
body.addObject(pad10)
pad10.Profile = sketch21
pad10.Length = 2

# Sketch on XZ plane
sketch22 = doc.addObject("Sketcher::SketchObject", "Sketch021")
body.addObject(sketch22)
sketch22.AttachmentSupport = (doc.XZ_Plane, [""])
sketch22.MapMode = "FlatFace"
sketch22.AttachmentOffset = App.Placement(V(0, 0, -9), App.Rotation())
add_polygon(sketch22, [(-26.5, 22), (-26.5, 21), (26.5, 21), (26.5, 22)])  # lines 0-3
sketch22.addConstraint(Sketcher.Constraint("Vertical", 0))
sketch22.addConstraint(Sketcher.Constraint("Horizontal", 1))
sketch22.addConstraint(Sketcher.Constraint("Vertical", 2))
sketch22.addConstraint(Sketcher.Constraint("Horizontal", 3))
sketch22.addConstraint(Sketcher.Constraint("DistanceX", 1, 1, 1, 2, Q("53 mm")))
sketch22.addConstraint(Sketcher.Constraint("DistanceY", 0, 2, 0, 1, Q("1 mm")))
sketch22.addConstraint(Sketcher.Constraint("DistanceY", -1, 1, 0, 2, Q("21 mm")))
sketch22.addConstraint(Sketcher.Constraint("DistanceX", 0, 2, -1, 1, Q("26.5 mm")))
pad11 = doc.addObject("PartDesign::Pad", "Pad010")
body.addObject(pad11)
pad11.Profile = sketch22
pad11.Length = 12

# Sketch on XZ plane
sketch23 = doc.addObject("Sketcher::SketchObject", "Sketch022")
body.addObject(sketch23)
sketch23.AttachmentSupport = (doc.XZ_Plane, [""])
sketch23.MapMode = "FlatFace"
sketch23.AttachmentOffset = App.Placement(V(0, 0, -20), App.Rotation())
add_polygon(sketch23, [(-26.5, 29), (-26.5, 28), (26.5, 28), (26.5, 29)])  # lines 0-3
sketch23.addConstraint(Sketcher.Constraint("Vertical", 0))
sketch23.addConstraint(Sketcher.Constraint("Horizontal", 1))
sketch23.addConstraint(Sketcher.Constraint("Vertical", 2))
sketch23.addConstraint(Sketcher.Constraint("Horizontal", 3))
sketch23.addConstraint(Sketcher.Constraint("DistanceX", 1, 1, 1, 2, Q("53 mm")))
sketch23.addConstraint(Sketcher.Constraint("DistanceY", 0, 2, 0, 1, Q("1 mm")))
sketch23.addConstraint(Sketcher.Constraint("DistanceY", -1, 1, 0, 2, Q("28 mm")))
sketch23.addConstraint(Sketcher.Constraint("DistanceX", 0, 2, -1, 1, Q("26.5 mm")))
pad12 = doc.addObject("PartDesign::Pad", "Pad011")
body.addObject(pad12)
pad12.Profile = sketch23
pad12.Length = 23

# Sketch on XZ plane
sketch24 = doc.addObject("Sketcher::SketchObject", "Sketch023")
body.addObject(sketch24)
sketch24.AttachmentSupport = (doc.XZ_Plane, [""])
sketch24.MapMode = "FlatFace"
sketch24.AttachmentOffset = App.Placement(V(0, 0, -20), App.Rotation())
add_polygon(sketch24, [(17, 10), (17, -10), (30, -10), (30, 10)])  # lines 0-3
sketch24.addConstraint(Sketcher.Constraint("Vertical", 0))
sketch24.addConstraint(Sketcher.Constraint("Horizontal", 1))
sketch24.addConstraint(Sketcher.Constraint("Vertical", 2))
sketch24.addConstraint(Sketcher.Constraint("Horizontal", 3))
sketch24.addConstraint(Sketcher.Constraint("DistanceY", 0, 2, 0, 1, Q("21 mm")))
sketch24.addConstraint(Sketcher.Constraint("DistanceX", 1, 1, 1, 2, Q("12.5 mm")))
sketch24.addConstraint(Sketcher.Constraint("DistanceX", -1, 1, 0, 2, Q("17 mm")))
sketch24.addConstraint(Sketcher.Constraint("DistanceY", 0, 2, -1, 1, Q("10.5 mm")))
pad13 = doc.addObject("PartDesign::Pad", "Pad012")
body.addObject(pad13)
pad13.Profile = sketch24
pad13.Length = 2

# Sketch on YZ plane
sketch25 = doc.addObject("Sketcher::SketchObject", "Sketch024")
body.addObject(sketch25)
sketch25.AttachmentSupport = (doc.YZ_Plane, [""])
sketch25.MapMode = "FlatFace"
sketch25.AttachmentOffset = App.Placement(V(0, 0, -29.5), App.Rotation())
add_polygon(sketch25, [(7, 16.5), (-3, 16.5), (-3, 21), (7, 21)])  # lines 0-3
sketch25.addConstraint(Sketcher.Constraint("Horizontal", 0))
sketch25.addConstraint(Sketcher.Constraint("Vertical", 1))
sketch25.addConstraint(Sketcher.Constraint("Horizontal", 2))
sketch25.addConstraint(Sketcher.Constraint("Vertical", 3))
sketch25.addConstraint(Sketcher.Constraint("DistanceX", 0, 2, 0, 1, Q("10 mm")))
sketch25.addConstraint(Sketcher.Constraint("DistanceY", 1, 1, 1, 2, Q("4.5 mm")))
sketch25.addConstraint(Sketcher.Constraint("DistanceX", 0, 2, -1, 1, Q("3 mm")))
sketch25.addConstraint(Sketcher.Constraint("DistanceY", -1, 1, 1, 2, Q("21 mm")))
pocket12 = doc.addObject("PartDesign::Pocket", "Pocket011")
body.addObject(pocket12)
pocket12.Profile = sketch25
pocket12.Type = "UpToFirst"
pocket12.Reversed = True

doc.recompute()
